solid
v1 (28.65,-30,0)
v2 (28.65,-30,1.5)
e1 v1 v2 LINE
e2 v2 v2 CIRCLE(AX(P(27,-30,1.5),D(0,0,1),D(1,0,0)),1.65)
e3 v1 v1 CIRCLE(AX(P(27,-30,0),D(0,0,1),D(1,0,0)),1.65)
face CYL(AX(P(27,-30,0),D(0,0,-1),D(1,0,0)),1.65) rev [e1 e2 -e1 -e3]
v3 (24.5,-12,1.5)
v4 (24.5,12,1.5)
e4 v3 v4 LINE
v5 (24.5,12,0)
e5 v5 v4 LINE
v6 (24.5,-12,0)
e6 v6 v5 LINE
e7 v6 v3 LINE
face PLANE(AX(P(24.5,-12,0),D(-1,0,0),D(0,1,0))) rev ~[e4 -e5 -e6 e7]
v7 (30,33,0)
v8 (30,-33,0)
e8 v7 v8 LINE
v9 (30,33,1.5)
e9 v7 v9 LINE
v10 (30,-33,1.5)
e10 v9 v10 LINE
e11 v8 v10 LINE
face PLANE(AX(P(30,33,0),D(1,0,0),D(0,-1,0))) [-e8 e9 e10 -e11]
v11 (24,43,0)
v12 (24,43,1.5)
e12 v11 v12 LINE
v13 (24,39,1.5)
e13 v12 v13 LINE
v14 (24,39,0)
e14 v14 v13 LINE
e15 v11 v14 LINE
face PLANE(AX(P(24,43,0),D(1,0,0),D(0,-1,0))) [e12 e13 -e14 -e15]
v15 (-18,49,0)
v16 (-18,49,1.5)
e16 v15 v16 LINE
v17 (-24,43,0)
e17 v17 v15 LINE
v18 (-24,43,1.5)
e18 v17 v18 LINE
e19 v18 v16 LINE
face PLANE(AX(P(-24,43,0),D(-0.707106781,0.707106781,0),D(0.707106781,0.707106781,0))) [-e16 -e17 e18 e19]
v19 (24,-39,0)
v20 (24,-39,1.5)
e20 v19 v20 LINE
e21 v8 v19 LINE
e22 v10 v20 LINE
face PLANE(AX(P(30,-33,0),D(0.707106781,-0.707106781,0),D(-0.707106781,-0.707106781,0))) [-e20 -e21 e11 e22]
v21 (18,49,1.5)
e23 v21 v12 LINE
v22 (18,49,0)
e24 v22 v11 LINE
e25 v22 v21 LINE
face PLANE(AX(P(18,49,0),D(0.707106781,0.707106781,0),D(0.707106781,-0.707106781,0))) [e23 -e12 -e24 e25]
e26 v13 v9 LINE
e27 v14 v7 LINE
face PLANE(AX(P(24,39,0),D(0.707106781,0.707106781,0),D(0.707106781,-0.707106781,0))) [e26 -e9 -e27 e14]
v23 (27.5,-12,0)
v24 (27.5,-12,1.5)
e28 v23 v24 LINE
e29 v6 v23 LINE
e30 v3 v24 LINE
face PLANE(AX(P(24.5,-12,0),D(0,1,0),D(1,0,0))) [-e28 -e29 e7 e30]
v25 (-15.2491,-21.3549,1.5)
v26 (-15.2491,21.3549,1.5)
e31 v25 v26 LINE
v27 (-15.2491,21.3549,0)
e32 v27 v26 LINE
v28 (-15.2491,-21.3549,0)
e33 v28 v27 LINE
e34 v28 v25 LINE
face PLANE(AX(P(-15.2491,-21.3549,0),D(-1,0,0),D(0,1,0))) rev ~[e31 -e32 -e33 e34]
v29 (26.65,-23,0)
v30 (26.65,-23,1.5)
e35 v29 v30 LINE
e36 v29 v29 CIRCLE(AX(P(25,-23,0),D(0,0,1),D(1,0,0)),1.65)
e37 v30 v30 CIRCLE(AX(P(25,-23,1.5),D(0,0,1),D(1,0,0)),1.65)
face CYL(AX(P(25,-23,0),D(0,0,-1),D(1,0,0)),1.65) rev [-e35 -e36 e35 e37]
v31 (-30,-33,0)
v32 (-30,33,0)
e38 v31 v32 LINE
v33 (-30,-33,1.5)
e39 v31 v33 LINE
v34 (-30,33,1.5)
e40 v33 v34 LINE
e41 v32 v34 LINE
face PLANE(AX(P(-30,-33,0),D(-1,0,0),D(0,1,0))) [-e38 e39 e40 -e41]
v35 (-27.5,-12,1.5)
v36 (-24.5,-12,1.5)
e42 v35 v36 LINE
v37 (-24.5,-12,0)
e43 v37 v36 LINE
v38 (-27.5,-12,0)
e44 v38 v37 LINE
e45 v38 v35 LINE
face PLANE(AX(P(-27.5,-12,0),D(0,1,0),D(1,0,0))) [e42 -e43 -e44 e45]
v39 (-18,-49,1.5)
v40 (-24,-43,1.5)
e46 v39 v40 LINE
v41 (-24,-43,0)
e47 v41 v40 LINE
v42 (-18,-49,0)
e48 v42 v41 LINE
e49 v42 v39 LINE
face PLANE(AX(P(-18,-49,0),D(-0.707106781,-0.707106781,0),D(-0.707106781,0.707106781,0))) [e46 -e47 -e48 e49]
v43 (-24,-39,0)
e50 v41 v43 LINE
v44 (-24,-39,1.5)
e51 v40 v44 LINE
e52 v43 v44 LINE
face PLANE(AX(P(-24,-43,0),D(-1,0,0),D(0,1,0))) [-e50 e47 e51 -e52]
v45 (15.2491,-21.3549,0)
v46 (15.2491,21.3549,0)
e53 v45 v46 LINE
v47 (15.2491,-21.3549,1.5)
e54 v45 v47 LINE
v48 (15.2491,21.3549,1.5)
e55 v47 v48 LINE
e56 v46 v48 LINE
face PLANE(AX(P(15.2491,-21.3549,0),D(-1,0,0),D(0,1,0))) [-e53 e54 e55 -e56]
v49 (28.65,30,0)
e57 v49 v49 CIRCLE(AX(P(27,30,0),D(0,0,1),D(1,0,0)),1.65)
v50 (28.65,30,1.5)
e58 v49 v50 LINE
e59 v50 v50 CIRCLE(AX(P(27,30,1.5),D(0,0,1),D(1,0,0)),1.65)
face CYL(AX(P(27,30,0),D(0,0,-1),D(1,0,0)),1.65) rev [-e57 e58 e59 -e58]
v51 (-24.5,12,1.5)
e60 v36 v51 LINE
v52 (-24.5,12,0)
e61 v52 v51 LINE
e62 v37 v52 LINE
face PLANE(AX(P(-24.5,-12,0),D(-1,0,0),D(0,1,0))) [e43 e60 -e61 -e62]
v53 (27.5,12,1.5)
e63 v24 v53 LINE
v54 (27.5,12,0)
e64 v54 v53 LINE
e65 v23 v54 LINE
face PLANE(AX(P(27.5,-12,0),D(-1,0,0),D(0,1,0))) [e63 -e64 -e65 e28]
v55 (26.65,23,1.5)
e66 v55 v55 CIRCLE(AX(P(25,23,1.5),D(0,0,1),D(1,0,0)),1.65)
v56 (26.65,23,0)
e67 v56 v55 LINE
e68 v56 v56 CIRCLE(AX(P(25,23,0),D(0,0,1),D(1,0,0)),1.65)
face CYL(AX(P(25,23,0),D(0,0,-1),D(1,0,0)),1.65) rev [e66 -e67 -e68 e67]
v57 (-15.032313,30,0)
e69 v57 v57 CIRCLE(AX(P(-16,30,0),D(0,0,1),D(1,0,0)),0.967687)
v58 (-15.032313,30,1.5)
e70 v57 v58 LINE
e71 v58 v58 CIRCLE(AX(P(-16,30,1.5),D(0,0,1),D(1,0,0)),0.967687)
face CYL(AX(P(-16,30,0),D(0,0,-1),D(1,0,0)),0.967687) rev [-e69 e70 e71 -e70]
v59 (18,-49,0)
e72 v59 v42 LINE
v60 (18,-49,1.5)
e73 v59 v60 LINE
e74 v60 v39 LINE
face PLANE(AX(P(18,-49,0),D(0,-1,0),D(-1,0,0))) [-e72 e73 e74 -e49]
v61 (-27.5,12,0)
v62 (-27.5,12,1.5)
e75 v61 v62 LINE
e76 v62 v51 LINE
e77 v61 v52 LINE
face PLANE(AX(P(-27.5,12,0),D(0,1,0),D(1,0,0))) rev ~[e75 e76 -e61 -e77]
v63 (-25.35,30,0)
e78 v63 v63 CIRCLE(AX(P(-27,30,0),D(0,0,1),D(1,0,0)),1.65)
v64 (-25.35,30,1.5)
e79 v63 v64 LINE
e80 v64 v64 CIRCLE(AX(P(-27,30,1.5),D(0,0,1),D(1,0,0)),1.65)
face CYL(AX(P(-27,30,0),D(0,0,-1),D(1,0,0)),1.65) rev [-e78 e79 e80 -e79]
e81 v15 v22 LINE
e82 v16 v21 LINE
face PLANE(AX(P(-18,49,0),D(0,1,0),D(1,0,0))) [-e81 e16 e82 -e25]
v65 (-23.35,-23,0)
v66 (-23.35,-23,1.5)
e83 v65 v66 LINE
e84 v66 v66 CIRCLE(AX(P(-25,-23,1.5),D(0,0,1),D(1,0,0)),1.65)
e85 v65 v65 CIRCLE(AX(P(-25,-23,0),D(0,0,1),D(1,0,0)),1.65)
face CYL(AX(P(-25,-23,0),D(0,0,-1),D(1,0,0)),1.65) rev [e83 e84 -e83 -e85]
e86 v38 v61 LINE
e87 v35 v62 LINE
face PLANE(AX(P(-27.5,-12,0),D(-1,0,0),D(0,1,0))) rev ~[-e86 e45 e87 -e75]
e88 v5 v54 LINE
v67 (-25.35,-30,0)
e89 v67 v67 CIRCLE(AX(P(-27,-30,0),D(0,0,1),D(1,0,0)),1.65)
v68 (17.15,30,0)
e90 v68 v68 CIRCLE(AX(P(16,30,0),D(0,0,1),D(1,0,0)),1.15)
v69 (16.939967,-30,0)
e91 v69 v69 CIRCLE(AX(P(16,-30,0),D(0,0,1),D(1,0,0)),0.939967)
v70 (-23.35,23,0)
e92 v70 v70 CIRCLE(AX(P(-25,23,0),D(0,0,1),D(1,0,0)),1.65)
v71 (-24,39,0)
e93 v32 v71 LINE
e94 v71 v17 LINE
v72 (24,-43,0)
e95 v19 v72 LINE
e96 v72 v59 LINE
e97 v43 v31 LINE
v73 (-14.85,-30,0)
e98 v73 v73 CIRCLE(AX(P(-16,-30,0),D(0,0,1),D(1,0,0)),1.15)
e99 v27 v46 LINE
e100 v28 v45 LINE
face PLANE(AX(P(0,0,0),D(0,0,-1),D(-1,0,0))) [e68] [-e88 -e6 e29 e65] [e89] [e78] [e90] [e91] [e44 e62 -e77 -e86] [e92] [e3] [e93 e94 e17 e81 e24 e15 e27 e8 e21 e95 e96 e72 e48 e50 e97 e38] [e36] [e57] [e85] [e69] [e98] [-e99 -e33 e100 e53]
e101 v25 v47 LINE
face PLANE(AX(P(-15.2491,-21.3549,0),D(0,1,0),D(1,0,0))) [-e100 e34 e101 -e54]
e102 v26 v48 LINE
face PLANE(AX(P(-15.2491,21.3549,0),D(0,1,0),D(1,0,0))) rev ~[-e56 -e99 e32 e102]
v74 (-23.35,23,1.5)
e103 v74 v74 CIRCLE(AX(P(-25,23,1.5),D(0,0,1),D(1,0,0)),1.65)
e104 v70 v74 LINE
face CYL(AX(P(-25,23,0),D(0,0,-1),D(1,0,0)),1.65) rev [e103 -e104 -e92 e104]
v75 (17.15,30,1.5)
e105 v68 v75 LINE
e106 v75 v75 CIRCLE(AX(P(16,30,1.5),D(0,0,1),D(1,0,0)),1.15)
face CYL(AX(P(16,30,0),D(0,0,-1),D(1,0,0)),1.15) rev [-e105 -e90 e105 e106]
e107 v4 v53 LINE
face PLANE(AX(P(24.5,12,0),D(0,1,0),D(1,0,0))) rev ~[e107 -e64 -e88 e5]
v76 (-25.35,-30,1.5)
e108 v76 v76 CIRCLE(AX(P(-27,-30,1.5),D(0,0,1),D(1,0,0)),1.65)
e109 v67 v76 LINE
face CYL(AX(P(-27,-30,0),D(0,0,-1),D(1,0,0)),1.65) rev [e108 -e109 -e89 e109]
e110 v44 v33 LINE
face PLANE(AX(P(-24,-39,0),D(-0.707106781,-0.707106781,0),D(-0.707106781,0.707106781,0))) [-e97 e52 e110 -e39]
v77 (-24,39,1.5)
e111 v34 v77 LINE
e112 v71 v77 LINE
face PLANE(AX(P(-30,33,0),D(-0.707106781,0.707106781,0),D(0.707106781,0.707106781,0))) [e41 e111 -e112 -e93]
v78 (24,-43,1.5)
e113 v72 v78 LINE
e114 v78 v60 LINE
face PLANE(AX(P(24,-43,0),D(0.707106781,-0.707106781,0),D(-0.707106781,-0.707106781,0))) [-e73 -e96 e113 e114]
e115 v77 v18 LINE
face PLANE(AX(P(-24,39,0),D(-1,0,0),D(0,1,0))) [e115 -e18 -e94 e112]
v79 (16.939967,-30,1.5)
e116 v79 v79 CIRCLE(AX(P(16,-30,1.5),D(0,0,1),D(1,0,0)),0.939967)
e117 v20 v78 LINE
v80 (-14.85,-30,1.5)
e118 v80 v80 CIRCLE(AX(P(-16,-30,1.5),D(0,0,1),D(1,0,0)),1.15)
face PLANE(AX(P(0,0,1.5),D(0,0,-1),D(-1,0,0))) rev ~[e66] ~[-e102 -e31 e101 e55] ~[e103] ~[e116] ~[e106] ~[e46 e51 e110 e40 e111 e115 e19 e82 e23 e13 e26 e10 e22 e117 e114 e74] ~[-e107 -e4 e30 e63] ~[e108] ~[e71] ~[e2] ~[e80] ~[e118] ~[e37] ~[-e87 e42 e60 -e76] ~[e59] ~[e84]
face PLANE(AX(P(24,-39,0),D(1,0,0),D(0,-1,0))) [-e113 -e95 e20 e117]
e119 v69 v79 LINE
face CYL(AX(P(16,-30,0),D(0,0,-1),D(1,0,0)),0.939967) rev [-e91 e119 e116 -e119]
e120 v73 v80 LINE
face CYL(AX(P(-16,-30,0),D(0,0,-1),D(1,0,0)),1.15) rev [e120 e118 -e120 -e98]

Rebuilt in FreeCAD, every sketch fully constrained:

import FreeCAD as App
import Part
import Sketcher
from FreeCAD import Vector

doc = App.newDocument("Part")
body = doc.addObject("PartDesign::Body", "Body")

# Sketch on XY plane
sketch1 = body.newObject("Sketcher::SketchObject", "Sketch")
sketch1.AttachmentSupport = (doc.getObject("XY_Plane"), [""])
sketch1.MapMode = "FlatFace"
sketch1.addGeometry(Part.LineSegment(Vector(24, -43, 0), Vector(24, -39, 0)), False)
sketch1.addGeometry(Part.LineSegment(Vector(24, -39, 0), Vector(30, -33, 0)), False)
sketch1.addGeometry(Part.LineSegment(Vector(30, -33, 0), Vector(30, 33, 0)), False)
sketch1.addGeometry(Part.LineSegment(Vector(30, 33, 0), Vector(24, 39, 0)), False)
sketch1.addGeometry(Part.LineSegment(Vector(24, 39, 0), Vector(24, 43, 0)), False)
sketch1.addGeometry(Part.LineSegment(Vector(24, 43, 0), Vector(18, 49, 0)), False)
sketch1.addGeometry(Part.LineSegment(Vector(18, 49, 0), Vector(-18, 49, 0)), False)
sketch1.addGeometry(Part.LineSegment(Vector(-18, 49, 0), Vector(-24, 43, 0)), False)
sketch1.addGeometry(Part.LineSegment(Vector(-24, 43, 0), Vector(-24, 39, 0)), False)
sketch1.addGeometry(Part.LineSegment(Vector(-24, 39, 0), Vector(-30, 33, 0)), False)
sketch1.addGeometry(Part.LineSegment(Vector(-30, 33, 0), Vector(-30, -33, 0)), False)
sketch1.addGeometry(Part.LineSegment(Vector(-30, -33, 0), Vector(-24, -39, 0)), False)
sketch1.addGeometry(Part.LineSegment(Vector(-24, -39, 0), Vector(-24, -43, 0)), False)
sketch1.addGeometry(Part.LineSegment(Vector(-24, -43, 0), Vector(-18, -49, 0)), False)
sketch1.addGeometry(Part.LineSegment(Vector(-18, -49, 0), Vector(18, -49, 0)), False)
sketch1.addGeometry(Part.LineSegment(Vector(18, -49, 0), Vector(24, -43, 0)), False)
sketch1.addGeometry(Part.Circle(Vector(27, -30, 0), Vector(0, 0, 1), 1.65), False)
sketch1.addGeometry(Part.Circle(Vector(16, -30, 0), Vector(0, 0, 1), 0.939967), False)
sketch1.addGeometry(Part.Circle(Vector(-16, -30, 0), Vector(0, 0, 1), 1.15), False)
sketch1.addGeometry(Part.Circle(Vector(-27, -30, 0), Vector(0, 0, 1), 1.65), False)
sketch1.addGeometry(Part.LineSegment(Vector(24.5, -12, 0), Vector(24.5, 12, 0)), False)
sketch1.addGeometry(Part.LineSegment(Vector(24.5, 12, 0), Vector(27.5, 12, 0)), False)
sketch1.addGeometry(Part.LineSegment(Vector(27.5, 12, 0), Vector(27.5, -12, 0)), False)
sketch1.addGeometry(Part.LineSegment(Vector(27.5, -12, 0), Vector(24.5, -12, 0)), False)
sketch1.addGeometry(Part.Circle(Vector(27, 30, 0), Vector(0, 0, 1), 1.65), False)
sketch1.addGeometry(Part.Circle(Vector(16, 30, 0), Vector(0, 0, 1), 1.15), False)
sketch1.addGeometry(Part.LineSegment(Vector(-15.2491, -21.3549, 0), Vector(-15.2491, 21.3549, 0)), False)
sketch1.addGeometry(Part.LineSegment(Vector(-15.2491, 21.3549, 0), Vector(15.2491, 21.3549, 0)), False)
sketch1.addGeometry(Part.LineSegment(Vector(15.2491, 21.3549, 0), Vector(15.2491, -21.3549, 0)), False)
sketch1.addGeometry(Part.LineSegment(Vector(15.2491, -21.3549, 0), Vector(-15.2491, -21.3549, 0)), False)
sketch1.addGeometry(Part.LineSegment(Vector(-27.5, -12, 0), Vector(-27.5, 12, 0)), False)
sketch1.addGeometry(Part.LineSegment(Vector(-27.5, 12, 0), Vector(-24.5, 12, 0)), False)
sketch1.addGeometry(Part.LineSegment(Vector(-24.5, 12, 0), Vector(-24.5, -12, 0)), False)
sketch1.addGeometry(Part.LineSegment(Vector(-24.5, -12, 0), Vector(-27.5, -12, 0)), False)
sketch1.addGeometry(Part.Circle(Vector(-16, 30, 0), Vector(0, 0, 1), 0.967687), False)
sketch1.addGeometry(Part.Circle(Vector(-27, 30, 0), Vector(0, 0, 1), 1.65), False)
sketch1.addConstraint(Sketcher.Constraint("Coincident", 0, 2, 1, 1))
sketch1.addConstraint(Sketcher.Constraint("Coincident", 1, 2, 2, 1))
sketch1.addConstraint(Sketcher.Constraint("Coincident", 2, 2, 3, 1))
sketch1.addConstraint(Sketcher.Constraint("Coincident", 3, 2, 4, 1))
sketch1.addConstraint(Sketcher.Constraint("Coincident", 4, 2, 5, 1))
sketch1.addConstraint(Sketcher.Constraint("Coincident", 5, 2, 6, 1))
sketch1.addConstraint(Sketcher.Constraint("Coincident", 6, 2, 7, 1))
sketch1.addConstraint(Sketcher.Constraint("Coincident", 7, 2, 8, 1))
sketch1.addConstraint(Sketcher.Constraint("Coincident", 8, 2, 9, 1))
sketch1.addConstraint(Sketcher.Constraint("Coincident", 9, 2, 10, 1))
sketch1.addConstraint(Sketcher.Constraint("Coincident", 10, 2, 11, 1))
sketch1.addConstraint(Sketcher.Constraint("Coincident", 11, 2, 12, 1))
sketch1.addConstraint(Sketcher.Constraint("Coincident", 12, 2, 13, 1))
sketch1.addConstraint(Sketcher.Constraint("Coincident", 13, 2, 14, 1))
sketch1.addConstraint(Sketcher.Constraint("Coincident", 14, 2, 15, 1))
sketch1.addConstraint(Sketcher.Constraint("Coincident", 15, 2, 0, 1))
sketch1.addConstraint(Sketcher.Constraint("Coincident", 20, 2, 21, 1))
sketch1.addConstraint(Sketcher.Constraint("Coincident", 21, 2, 22, 1))
sketch1.addConstraint(Sketcher.Constraint("Coincident", 22, 2, 23, 1))
sketch1.addConstraint(Sketcher.Constraint("Coincident", 23, 2, 20, 1))
sketch1.addConstraint(Sketcher.Constraint("Coincident", 26, 2, 27, 1))
sketch1.addConstraint(Sketcher.Constraint("Coincident", 27, 2, 28, 1))
sketch1.addConstraint(Sketcher.Constraint("Coincident", 28, 2, 29, 1))
sketch1.addConstraint(Sketcher.Constraint("Coincident", 29, 2, 26, 1))
sketch1.addConstraint(Sketcher.Constraint("Coincident", 30, 2, 31, 1))
sketch1.addConstraint(Sketcher.Constraint("Coincident", 31, 2, 32, 1))
sketch1.addConstraint(Sketcher.Constraint("Coincident", 32, 2, 33, 1))
sketch1.addConstraint(Sketcher.Constraint("Coincident", 33, 2, 30, 1))
sketch1.addConstraint(Sketcher.Constraint("Vertical", 0))
sketch1.addConstraint(Sketcher.Constraint("Vertical", 2))
sketch1.addConstraint(Sketcher.Constraint("Vertical", 4))
sketch1.addConstraint(Sketcher.Constraint("Horizontal", 6))
sketch1.addConstraint(Sketcher.Constraint("Vertical", 8))
sketch1.addConstraint(Sketcher.Constraint("Vertical", 10))
sketch1.addConstraint(Sketcher.Constraint("Vertical", 12))
sketch1.addConstraint(Sketcher.Constraint("Horizontal", 14))
sketch1.addConstraint(Sketcher.Constraint("Vertical", 20))
sketch1.addConstraint(Sketcher.Constraint("Horizontal", 21))
sketch1.addConstraint(Sketcher.Constraint("Vertical", 22))
sketch1.addConstraint(Sketcher.Constraint("Horizontal", 23))
sketch1.addConstraint(Sketcher.Constraint("Vertical", 26))
sketch1.addConstraint(Sketcher.Constraint("Horizontal", 27))
sketch1.addConstraint(Sketcher.Constraint("Vertical", 28))
sketch1.addConstraint(Sketcher.Constraint("Horizontal", 29))
sketch1.addConstraint(Sketcher.Constraint("Vertical", 30))
sketch1.addConstraint(Sketcher.Constraint("Horizontal", 31))
sketch1.addConstraint(Sketcher.Constraint("Vertical", 32))
sketch1.addConstraint(Sketcher.Constraint("Horizontal", 33))
sketch1.addConstraint(Sketcher.Constraint("Equal", 16, 19))
sketch1.addConstraint(Sketcher.Constraint("Equal", 19, 24))
sketch1.addConstraint(Sketcher.Constraint("Equal", 18, 25))
sketch1.addConstraint(Sketcher.Constraint("Equal", 24, 35))
sketch1.addConstraint(Sketcher.Constraint("Symmetric", 19, 3, 24, 3, -1, 1))
sketch1.addConstraint(Sketcher.Constraint("Symmetric", 18, 3, 25, 3, -1, 1))
sketch1.addConstraint(Sketcher.Constraint("Symmetric", 17, 3, 34, 3, -1, 1))
sketch1.addConstraint(Sketcher.Constraint("Symmetric", 16, 3, 35, 3, -1, 1))
sketch1.addConstraint(Sketcher.Constraint("Symmetric", 0, 2, 8, 2, -1, 1))
sketch1.addConstraint(Sketcher.Constraint("Symmetric", 1, 2, 9, 2, -1, 1))
sketch1.addConstraint(Sketcher.Constraint("Symmetric", 3, 2, 11, 2, -1, 1))
sketch1.addConstraint(Sketcher.Constraint("Symmetric", 5, 2, 13, 2, -1, 1))
sketch1.addConstraint(Sketcher.Constraint("Symmetric", 26, 2, 28, 2, -1, 1))
sketch1.addConstraint(Sketcher.Constraint("Symmetric", 22, 2, 30, 2, -1, 1))
sketch1.addConstraint(Sketcher.Constraint("Symmetric", 20, 2, 32, 2, -1, 1))
sketch1.addConstraint(Sketcher.Constraint("Symmetric", 17, 3, 18, 3, -2))
sketch1.addConstraint(Sketcher.Constraint("Symmetric", 16, 3, 19, 3, -2))
sketch1.addConstraint(Sketcher.Constraint("Symmetric", 4, 2, 7, 2, -2))
sketch1.addConstraint(Sketcher.Constraint("Perpendicular", 1, 3))
sketch1.addConstraint(Sketcher.Constraint("Parallel", 3, 5))
sketch1.addConstraint(Sketcher.Constraint("Perpendicular", 5, 7))
sketch1.addConstraint(Sketcher.Constraint("Perpendicular", 9, 11))
sketch1.addConstraint(Sketcher.Constraint("Parallel", 11, 13))
sketch1.addConstraint(Sketcher.Constraint("Perpendicular", 13, 15))
sketch1.addConstraint(Sketcher.Constraint("Horizontal", 16, 3, 17, 3))
sketch1.addConstraint(Sketcher.Constraint("Horizontal", 3, 2, 8, 2))
sketch1.addConstraint(Sketcher.Constraint("Horizontal", 2, 2, 9, 2))
sketch1.addConstraint(Sketcher.Constraint("Horizontal", 12, 2, 15, 2))
sketch1.addConstraint(Sketcher.Constraint("Horizontal", 21, 2, 30, 2))
sketch1.addConstraint(Sketcher.Constraint("Equal", 3, 5))
sketch1.addConstraint(Sketcher.Constraint("Diameter", 16, 3.3))
sketch1.addConstraint(Sketcher.Constraint("Diameter", 18, 2.3))
sketch1.addConstraint(Sketcher.Constraint("DistanceX", 6, 2, 6, 1, 36.0))
sketch1.addConstraint(Sketcher.Constraint("DistanceX", 21, 1, 21, 2, 3.0))
sketch1.addConstraint(Sketcher.Constraint("DistanceY", 0, 1, 0, 2, 4.0))
sketch1.addConstraint(Sketcher.Constraint("DistanceY", 2, 1, 2, 2, 66.0))
sketch1.addConstraint(Sketcher.Constraint("DistanceY", 20, 1, 20, 2, 24.0))
sketch1.addConstraint(Sketcher.Constraint("DistanceX", -1, 1, 16, 3, 27.0))
sketch1.addConstraint(Sketcher.Constraint("DistanceY", 16, 3, -1, 1, 30.0))
sketch1.addConstraint(Sketcher.Constraint("DistanceX", -1, 1, 17, 3, 16.0))
sketch1.addConstraint(Sketcher.Constraint("DistanceX", -1, 1, 0, 2, 24.0))
sketch1.addConstraint(Sketcher.Constraint("DistanceX", -1, 1, 20, 2, 24.5))
sketch1.addConstraint(Sketcher.Constraint("Diameter", 17, 1.879935))
sketch1.addConstraint(Sketcher.Constraint("Diameter", 34, 1.935373))
sketch1.addConstraint(Sketcher.Constraint("DistanceX", 27, 1, 27, 2, 30.4982))
sketch1.addConstraint(Sketcher.Constraint("DistanceY", 26, 1, 26, 2, 42.7098))
pad1 = body.newObject("PartDesign::Pad", "Pad")
pad1.Profile = sketch1
pad1.Length = 1.5

# Sketch on XY plane
sketch2 = body.newObject("Sketcher::SketchObject", "Sketch001")
sketch2.AttachmentSupport = (doc.getObject("XY_Plane"), [""])
sketch2.MapMode = "FlatFace"
sketch2.addGeometry(Part.Circle(Vector(-25, -23, 0), Vector(0, 0, 1), 1.65), False)
sketch2.addGeometry(Part.Circle(Vector(-25, 23, 0), Vector(0, 0, 1), 1.65), False)
sketch2.addGeometry(Part.Circle(Vector(25, -23, 0), Vector(0, 0, 1), 1.65), False)
sketch2.addGeometry(Part.Circle(Vector(25, 23, 0), Vector(0, 0, 1), 1.65), False)
sketch2.addConstraint(Sketcher.Constraint("Equal", 0, 1))
sketch2.addConstraint(Sketcher.Constraint("Equal", 1, 2))
sketch2.addConstraint(Sketcher.Constraint("Equal", 2, 3))
sketch2.addConstraint(Sketcher.Constraint("Symmetric", 1, 3, 2, 3, -1, 1))
sketch2.addConstraint(Sketcher.Constraint("Symmetric", 0, 3, 3, 3, -1, 1))
sketch2.addConstraint(Sketcher.Constraint("Symmetric", 0, 3, 2, 3, -2))
sketch2.addConstraint(Sketcher.Constraint("Diameter", 0, 3.3))
sketch2.addConstraint(Sketcher.Constraint("DistanceX", 0, 3, -1, 1, 25.0))
sketch2.addConstraint(Sketcher.Constraint("DistanceY", 0, 3, -1, 1, 23.0))
pocket1 = body.newObject("PartDesign::Pocket", "Pocket")
pocket1.Profile = sketch2
pocket1.Length = 1.5
pocket1.Reversed = True

doc.recompute()
